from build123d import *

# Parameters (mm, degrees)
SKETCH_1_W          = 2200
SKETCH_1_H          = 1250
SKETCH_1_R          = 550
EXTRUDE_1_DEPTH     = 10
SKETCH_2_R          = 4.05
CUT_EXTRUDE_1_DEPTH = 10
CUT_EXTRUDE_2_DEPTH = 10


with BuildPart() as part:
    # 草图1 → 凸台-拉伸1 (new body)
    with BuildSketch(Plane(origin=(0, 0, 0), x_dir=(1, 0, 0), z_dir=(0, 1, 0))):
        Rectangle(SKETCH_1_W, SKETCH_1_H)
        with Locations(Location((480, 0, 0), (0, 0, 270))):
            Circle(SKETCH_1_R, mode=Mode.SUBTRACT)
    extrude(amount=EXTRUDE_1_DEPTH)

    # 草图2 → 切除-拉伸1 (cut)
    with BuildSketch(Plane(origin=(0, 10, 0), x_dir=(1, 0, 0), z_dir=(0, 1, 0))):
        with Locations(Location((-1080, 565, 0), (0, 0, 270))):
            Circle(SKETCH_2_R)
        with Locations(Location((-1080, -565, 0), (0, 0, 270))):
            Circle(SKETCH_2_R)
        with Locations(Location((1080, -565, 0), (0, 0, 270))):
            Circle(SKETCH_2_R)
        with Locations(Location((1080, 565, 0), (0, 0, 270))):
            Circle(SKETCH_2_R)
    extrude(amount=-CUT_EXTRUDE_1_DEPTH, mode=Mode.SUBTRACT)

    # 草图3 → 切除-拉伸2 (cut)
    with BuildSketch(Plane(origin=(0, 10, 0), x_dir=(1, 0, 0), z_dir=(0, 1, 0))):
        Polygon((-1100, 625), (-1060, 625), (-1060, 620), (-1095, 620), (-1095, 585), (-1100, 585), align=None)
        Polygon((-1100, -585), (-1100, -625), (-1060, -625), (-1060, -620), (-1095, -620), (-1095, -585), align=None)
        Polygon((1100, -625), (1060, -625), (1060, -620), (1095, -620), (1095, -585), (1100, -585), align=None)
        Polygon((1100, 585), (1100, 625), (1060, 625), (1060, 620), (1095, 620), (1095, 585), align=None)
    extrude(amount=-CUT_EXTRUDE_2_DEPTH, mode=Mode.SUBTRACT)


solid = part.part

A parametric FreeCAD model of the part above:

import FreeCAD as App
import Part
import Sketcher

doc = App.newDocument("Part")
body = doc.addObject("PartDesign::Body", "Body")

# Sketch on XZ plane
sketch1 = body.newObject("Sketcher::SketchObject", "Sketch")
sketch1.AttachmentSupport = (doc.getObject("XZ_Plane"), [""])
sketch1.MapMode = "FlatFace"
sketch1.addGeometry([
    Part.LineSegment(App.Vector(-1100, -625, 0), App.Vector(-1100, 625, 0)),  # 0
    Part.LineSegment(App.Vector(-1100, 625, 0), App.Vector(1100, 625, 0)),  # 1
    Part.LineSegment(App.Vector(1100, 625, 0), App.Vector(1100, -625, 0)),  # 2
    Part.LineSegment(App.Vector(1100, -625, 0), App.Vector(-1100, -625, 0)),  # 3
    Part.Circle(App.Vector(480, 0, 0), App.Vector(0, 0, 1), 550),  # 4
], False)
sketch1.addConstraint([
    Sketcher.Constraint("Coincident", 0, 2, 1, 1),
    Sketcher.Constraint("Coincident", 1, 2, 2, 1),
    Sketcher.Constraint("Coincident", 2, 2, 3, 1),
    Sketcher.Constraint("Coincident", 3, 2, 0, 1),
    Sketcher.Constraint("Vertical", 0),
    Sketcher.Constraint("Horizontal", 1),
    Sketcher.Constraint("Vertical", 2),
    Sketcher.Constraint("Horizontal", 3),
    Sketcher.Constraint("Symmetric", 0, 2, 2, 2, -1, 1),
    Sketcher.Constraint("PointOnObject", 4, 3, -1),
    Sketcher.Constraint("Diameter", 4, 1100.0),
    Sketcher.Constraint("DistanceX", 1, 1, 1, 2, 2200.0),
    Sketcher.Constraint("DistanceY", 0, 1, 0, 2, 1250.0),
    Sketcher.Constraint("DistanceX", -1, 1, 4, 3, 480.0),
])
pad1 = body.newObject("PartDesign::Pad", "Pad")
pad1.Profile = sketch1
pad1.Length = 10
pad1.Reversed = True

# Sketch on XZ plane
sketch2 = body.newObject("Sketcher::SketchObject", "Sketch001")
sketch2.AttachmentSupport = (doc.getObject("XZ_Plane"), [""])
sketch2.MapMode = "FlatFace"
sketch2.AttachmentOffset = App.Placement(App.Vector(0, 0, -10), App.Rotation())
sketch2.addGeometry([
    Part.Circle(App.Vector(-1080, -565, 0), App.Vector(0, 0, 1), 4),
    Part.Circle(App.Vector(-1080, 565, 0), App.Vector(0, 0, 1), 4),
    Part.Circle(App.Vector(1080, 565, 0), App.Vector(0, 0, 1), 4),
    Part.Circle(App.Vector(1080, -565, 0), App.Vector(0, 0, 1), 4),
], False)
sketch2.addConstraint([
    Sketcher.Constraint("Equal", 0, 1),
    Sketcher.Constraint("Equal", 1, 2),
    Sketcher.Constraint("Equal", 2, 3),
    Sketcher.Constraint("Symmetric", 0, 3, 2, 3, -1, 1),
    Sketcher.Constraint("Symmetric", 1, 3, 3, 3, -1, 1),
    Sketcher.Constraint("Symmetric", 1, 3, 2, 3, -2),
    Sketcher.Constraint("Diameter", 0, 8.1),
    Sketcher.Constraint("DistanceX", 0, 3, -1, 1, 1080.0),
    Sketcher.Constraint("DistanceY", 0, 3, -1, 1, 565.0),
])
pocket1 = body.newObject("PartDesign::Pocket", "Pocket")
pocket1.Profile = sketch2
pocket1.Length = 10
pocket1.Reversed = True

# Sketch on XZ plane
sketch3 = body.newObject("Sketcher::SketchObject", "Sketch002")
sketch3.AttachmentSupport = (doc.getObject("XZ_Plane"), [""])
sketch3.MapMode = "FlatFace"
sketch3.AttachmentOffset = App.Placement(App.Vector(0, 0, -10), App.Rotation())
sketch3.addGeometry([
    Part.LineSegment(App.Vector(-1060, -625, 0), App.Vector(-1100, -625, 0)),  # 0
    Part.LineSegment(App.Vector(-1100, -625, 0), App.Vector(-1100, -585, 0)),  # 1
    Part.LineSegment(App.Vector(-1100, -585, 0), App.Vector(-1095, -585, 0)),  # 2
    Part.LineSegment(App.Vector(-1095, -585, 0), App.Vector(-1095, -620, 0)),  # 3
    Part.LineSegment(App.Vector(-1095, -620, 0), App.Vector(-1060, -620, 0)),  # 4
    Part.LineSegment(App.Vector(-1060, -620, 0), App.Vector(-1060, -625, 0)),  # 5
    Part.LineSegment(App.Vector(-1100, 585, 0), App.Vector(-1100, 625, 0)),  # 6
    Part.LineSegment(App.Vector(-1100, 625, 0), App.Vector(-1060, 625, 0)),  # 7
    Part.LineSegment(App.Vector(-1060, 625, 0), App.Vector(-1060, 620, 0)),  # 8
    Part.LineSegment(App.Vector(-1060, 620, 0), App.Vector(-1095, 620, 0)),  # 9
    Part.LineSegment(App.Vector(-1095, 620, 0), App.Vector(-1095, 585, 0)),  # 10
    Part.LineSegment(App.Vector(-1095, 585, 0), App.Vector(-1100, 585, 0)),  # 11
    Part.LineSegment(App.Vector(1060, 625, 0), App.Vector(1100, 625, 0)),  # 12
    Part.LineSegment(App.Vector(1100, 625, 0), App.Vector(1100, 585, 0)),  # 13
    Part.LineSegment(App.Vector(1100, 585, 0), App.Vector(1095, 585, 0)),  # 14
    Part.LineSegment(App.Vector(1095, 585, 0), App.Vector(1095, 620, 0)),  # 15
    Part.LineSegment(App.Vector(1095, 620, 0), App.Vector(1060, 620, 0)),  # 16
    Part.LineSegment(App.Vector(1060, 620, 0), App.Vector(1060, 625, 0)),  # 17
    Part.LineSegment(App.Vector(1100, -585, 0), App.Vector(1100, -625, 0)),  # 18
    Part.LineSegment(App.Vector(1100, -625, 0), App.Vector(1060, -625, 0)),  # 19
    Part.LineSegment(App.Vector(1060, -625, 0), App.Vector(1060, -620, 0)),  # 20
    Part.LineSegment(App.Vector(1060, -620, 0), App.Vector(1095, -620, 0)),  # 21
    Part.LineSegment(App.Vector(1095, -620, 0), App.Vector(1095, -585, 0)),  # 22
    Part.LineSegment(App.Vector(1095, -585, 0), App.Vector(1100, -585, 0)),  # 23
], False)
sketch3.addConstraint([
    Sketcher.Constraint("Coincident", 0, 2, 1, 1),
    Sketcher.Constraint("Coincident", 1, 2, 2, 1),
    Sketcher.Constraint("Coincident", 2, 2, 3, 1),
    Sketcher.Constraint("Coincident", 3, 2, 4, 1),
    Sketcher.Constraint("Coincident", 4, 2, 5, 1),
    Sketcher.Constraint("Coincident", 5, 2, 0, 1),
    Sketcher.Constraint("Coincident", 6, 2, 7, 1),
    Sketcher.Constraint("Coincident", 7, 2, 8, 1),
    Sketcher.Constraint("Coincident", 8, 2, 9, 1),
    Sketcher.Constraint("Coincident", 9, 2, 10, 1),
    Sketcher.Constraint("Coincident", 10, 2, 11, 1),
    Sketcher.Constraint("Coincident", 11, 2, 6, 1),
    Sketcher.Constraint("Coincident", 12, 2, 13, 1),
    Sketcher.Constraint("Coincident", 13, 2, 14, 1),
    Sketcher.Constraint("Coincident", 14, 2, 15, 1),
    Sketcher.Constraint("Coincident", 15, 2, 16, 1),
    Sketcher.Constraint("Coincident", 16, 2, 17, 1),
    Sketcher.Constraint("Coincident", 17, 2, 12, 1),
    Sketcher.Constraint("Coincident", 18, 2, 19, 1),
    Sketcher.Constraint("Coincident", 19, 2, 20, 1),
    Sketcher.Constraint("Coincident", 20, 2, 21, 1),
    Sketcher.Constraint("Coincident", 21, 2, 22, 1),
    Sketcher.Constraint("Coincident", 22, 2, 23, 1),
    Sketcher.Constraint("Coincident", 23, 2, 18, 1),
    Sketcher.Constraint("Horizontal", 0),
    Sketcher.Constraint("Vertical", 1),
    Sketcher.Constraint("Horizontal", 2),
    Sketcher.Constraint("Vertical", 3),
    Sketcher.Constraint("Horizontal", 4),
    Sketcher.Constraint("Vertical", 5),
    Sketcher.Constraint("Vertical", 6),
    Sketcher.Constraint("Horizontal", 7),
    Sketcher.Constraint("Vertical", 8),
    Sketcher.Constraint("Horizontal", 9),
    Sketcher.Constraint("Vertical", 10),
    Sketcher.Constraint("Horizontal", 11),
    Sketcher.Constraint("Horizontal", 12),
    Sketcher.Constraint("Vertical", 13),
    Sketcher.Constraint("Horizontal", 14),
    Sketcher.Constraint("Vertical", 15),
    Sketcher.Constraint("Horizontal", 16),
    Sketcher.Constraint("Vertical", 17),
    Sketcher.Constraint("Vertical", 18),
    Sketcher.Constraint("Horizontal", 19),
    Sketcher.Constraint("Vertical", 20),
    Sketcher.Constraint("Horizontal", 21),
    Sketcher.Constraint("Vertical", 22),
    Sketcher.Constraint("Horizontal", 23),
    Sketcher.Constraint("Symmetric", 0, 2, 12, 2, -1, 1),
    Sketcher.Constraint("Symmetric", 2, 2, 14, 2, -1, 1),
    Sketcher.Constraint("Symmetric", 4, 2, 16, 2, -1, 1),
    Sketcher.Constraint("Symmetric", 6, 2, 18, 2, -1, 1),
    Sketcher.Constraint("Symmetric", 8, 2, 20, 2, -1, 1),
    Sketcher.Constraint("Symmetric", 10, 2, 22, 2, -1, 1),
    Sketcher.Constraint("Symmetric", 6, 2, 12, 2, -2),
    Sketcher.Constraint("Symmetric", 10, 2, 14, 2, -2),
    Sketcher.Constraint("Symmetric", 8, 2, 16, 2, -2),
    Sketcher.Constraint("Equal", 19, 1),
    Sketcher.Constraint("Equal", 21, 3),
    Sketcher.Constraint("DistanceX", 0, 2, 0, 1, 40.0),
    Sketcher.Constraint("DistanceX", 2, 1, 2, 2, 5.0),
    Sketcher.Constraint("DistanceX", 0, 2, -1, 1, 1100.0),
    Sketcher.Constraint("DistanceY", 0, 2, -1, 1, 625.0),
])
pocket2 = body.newObject("PartDesign::Pocket", "Pocket001")
pocket2.Profile = sketch3
pocket2.Length = 10
pocket2.Reversed = True

doc.recompute()
